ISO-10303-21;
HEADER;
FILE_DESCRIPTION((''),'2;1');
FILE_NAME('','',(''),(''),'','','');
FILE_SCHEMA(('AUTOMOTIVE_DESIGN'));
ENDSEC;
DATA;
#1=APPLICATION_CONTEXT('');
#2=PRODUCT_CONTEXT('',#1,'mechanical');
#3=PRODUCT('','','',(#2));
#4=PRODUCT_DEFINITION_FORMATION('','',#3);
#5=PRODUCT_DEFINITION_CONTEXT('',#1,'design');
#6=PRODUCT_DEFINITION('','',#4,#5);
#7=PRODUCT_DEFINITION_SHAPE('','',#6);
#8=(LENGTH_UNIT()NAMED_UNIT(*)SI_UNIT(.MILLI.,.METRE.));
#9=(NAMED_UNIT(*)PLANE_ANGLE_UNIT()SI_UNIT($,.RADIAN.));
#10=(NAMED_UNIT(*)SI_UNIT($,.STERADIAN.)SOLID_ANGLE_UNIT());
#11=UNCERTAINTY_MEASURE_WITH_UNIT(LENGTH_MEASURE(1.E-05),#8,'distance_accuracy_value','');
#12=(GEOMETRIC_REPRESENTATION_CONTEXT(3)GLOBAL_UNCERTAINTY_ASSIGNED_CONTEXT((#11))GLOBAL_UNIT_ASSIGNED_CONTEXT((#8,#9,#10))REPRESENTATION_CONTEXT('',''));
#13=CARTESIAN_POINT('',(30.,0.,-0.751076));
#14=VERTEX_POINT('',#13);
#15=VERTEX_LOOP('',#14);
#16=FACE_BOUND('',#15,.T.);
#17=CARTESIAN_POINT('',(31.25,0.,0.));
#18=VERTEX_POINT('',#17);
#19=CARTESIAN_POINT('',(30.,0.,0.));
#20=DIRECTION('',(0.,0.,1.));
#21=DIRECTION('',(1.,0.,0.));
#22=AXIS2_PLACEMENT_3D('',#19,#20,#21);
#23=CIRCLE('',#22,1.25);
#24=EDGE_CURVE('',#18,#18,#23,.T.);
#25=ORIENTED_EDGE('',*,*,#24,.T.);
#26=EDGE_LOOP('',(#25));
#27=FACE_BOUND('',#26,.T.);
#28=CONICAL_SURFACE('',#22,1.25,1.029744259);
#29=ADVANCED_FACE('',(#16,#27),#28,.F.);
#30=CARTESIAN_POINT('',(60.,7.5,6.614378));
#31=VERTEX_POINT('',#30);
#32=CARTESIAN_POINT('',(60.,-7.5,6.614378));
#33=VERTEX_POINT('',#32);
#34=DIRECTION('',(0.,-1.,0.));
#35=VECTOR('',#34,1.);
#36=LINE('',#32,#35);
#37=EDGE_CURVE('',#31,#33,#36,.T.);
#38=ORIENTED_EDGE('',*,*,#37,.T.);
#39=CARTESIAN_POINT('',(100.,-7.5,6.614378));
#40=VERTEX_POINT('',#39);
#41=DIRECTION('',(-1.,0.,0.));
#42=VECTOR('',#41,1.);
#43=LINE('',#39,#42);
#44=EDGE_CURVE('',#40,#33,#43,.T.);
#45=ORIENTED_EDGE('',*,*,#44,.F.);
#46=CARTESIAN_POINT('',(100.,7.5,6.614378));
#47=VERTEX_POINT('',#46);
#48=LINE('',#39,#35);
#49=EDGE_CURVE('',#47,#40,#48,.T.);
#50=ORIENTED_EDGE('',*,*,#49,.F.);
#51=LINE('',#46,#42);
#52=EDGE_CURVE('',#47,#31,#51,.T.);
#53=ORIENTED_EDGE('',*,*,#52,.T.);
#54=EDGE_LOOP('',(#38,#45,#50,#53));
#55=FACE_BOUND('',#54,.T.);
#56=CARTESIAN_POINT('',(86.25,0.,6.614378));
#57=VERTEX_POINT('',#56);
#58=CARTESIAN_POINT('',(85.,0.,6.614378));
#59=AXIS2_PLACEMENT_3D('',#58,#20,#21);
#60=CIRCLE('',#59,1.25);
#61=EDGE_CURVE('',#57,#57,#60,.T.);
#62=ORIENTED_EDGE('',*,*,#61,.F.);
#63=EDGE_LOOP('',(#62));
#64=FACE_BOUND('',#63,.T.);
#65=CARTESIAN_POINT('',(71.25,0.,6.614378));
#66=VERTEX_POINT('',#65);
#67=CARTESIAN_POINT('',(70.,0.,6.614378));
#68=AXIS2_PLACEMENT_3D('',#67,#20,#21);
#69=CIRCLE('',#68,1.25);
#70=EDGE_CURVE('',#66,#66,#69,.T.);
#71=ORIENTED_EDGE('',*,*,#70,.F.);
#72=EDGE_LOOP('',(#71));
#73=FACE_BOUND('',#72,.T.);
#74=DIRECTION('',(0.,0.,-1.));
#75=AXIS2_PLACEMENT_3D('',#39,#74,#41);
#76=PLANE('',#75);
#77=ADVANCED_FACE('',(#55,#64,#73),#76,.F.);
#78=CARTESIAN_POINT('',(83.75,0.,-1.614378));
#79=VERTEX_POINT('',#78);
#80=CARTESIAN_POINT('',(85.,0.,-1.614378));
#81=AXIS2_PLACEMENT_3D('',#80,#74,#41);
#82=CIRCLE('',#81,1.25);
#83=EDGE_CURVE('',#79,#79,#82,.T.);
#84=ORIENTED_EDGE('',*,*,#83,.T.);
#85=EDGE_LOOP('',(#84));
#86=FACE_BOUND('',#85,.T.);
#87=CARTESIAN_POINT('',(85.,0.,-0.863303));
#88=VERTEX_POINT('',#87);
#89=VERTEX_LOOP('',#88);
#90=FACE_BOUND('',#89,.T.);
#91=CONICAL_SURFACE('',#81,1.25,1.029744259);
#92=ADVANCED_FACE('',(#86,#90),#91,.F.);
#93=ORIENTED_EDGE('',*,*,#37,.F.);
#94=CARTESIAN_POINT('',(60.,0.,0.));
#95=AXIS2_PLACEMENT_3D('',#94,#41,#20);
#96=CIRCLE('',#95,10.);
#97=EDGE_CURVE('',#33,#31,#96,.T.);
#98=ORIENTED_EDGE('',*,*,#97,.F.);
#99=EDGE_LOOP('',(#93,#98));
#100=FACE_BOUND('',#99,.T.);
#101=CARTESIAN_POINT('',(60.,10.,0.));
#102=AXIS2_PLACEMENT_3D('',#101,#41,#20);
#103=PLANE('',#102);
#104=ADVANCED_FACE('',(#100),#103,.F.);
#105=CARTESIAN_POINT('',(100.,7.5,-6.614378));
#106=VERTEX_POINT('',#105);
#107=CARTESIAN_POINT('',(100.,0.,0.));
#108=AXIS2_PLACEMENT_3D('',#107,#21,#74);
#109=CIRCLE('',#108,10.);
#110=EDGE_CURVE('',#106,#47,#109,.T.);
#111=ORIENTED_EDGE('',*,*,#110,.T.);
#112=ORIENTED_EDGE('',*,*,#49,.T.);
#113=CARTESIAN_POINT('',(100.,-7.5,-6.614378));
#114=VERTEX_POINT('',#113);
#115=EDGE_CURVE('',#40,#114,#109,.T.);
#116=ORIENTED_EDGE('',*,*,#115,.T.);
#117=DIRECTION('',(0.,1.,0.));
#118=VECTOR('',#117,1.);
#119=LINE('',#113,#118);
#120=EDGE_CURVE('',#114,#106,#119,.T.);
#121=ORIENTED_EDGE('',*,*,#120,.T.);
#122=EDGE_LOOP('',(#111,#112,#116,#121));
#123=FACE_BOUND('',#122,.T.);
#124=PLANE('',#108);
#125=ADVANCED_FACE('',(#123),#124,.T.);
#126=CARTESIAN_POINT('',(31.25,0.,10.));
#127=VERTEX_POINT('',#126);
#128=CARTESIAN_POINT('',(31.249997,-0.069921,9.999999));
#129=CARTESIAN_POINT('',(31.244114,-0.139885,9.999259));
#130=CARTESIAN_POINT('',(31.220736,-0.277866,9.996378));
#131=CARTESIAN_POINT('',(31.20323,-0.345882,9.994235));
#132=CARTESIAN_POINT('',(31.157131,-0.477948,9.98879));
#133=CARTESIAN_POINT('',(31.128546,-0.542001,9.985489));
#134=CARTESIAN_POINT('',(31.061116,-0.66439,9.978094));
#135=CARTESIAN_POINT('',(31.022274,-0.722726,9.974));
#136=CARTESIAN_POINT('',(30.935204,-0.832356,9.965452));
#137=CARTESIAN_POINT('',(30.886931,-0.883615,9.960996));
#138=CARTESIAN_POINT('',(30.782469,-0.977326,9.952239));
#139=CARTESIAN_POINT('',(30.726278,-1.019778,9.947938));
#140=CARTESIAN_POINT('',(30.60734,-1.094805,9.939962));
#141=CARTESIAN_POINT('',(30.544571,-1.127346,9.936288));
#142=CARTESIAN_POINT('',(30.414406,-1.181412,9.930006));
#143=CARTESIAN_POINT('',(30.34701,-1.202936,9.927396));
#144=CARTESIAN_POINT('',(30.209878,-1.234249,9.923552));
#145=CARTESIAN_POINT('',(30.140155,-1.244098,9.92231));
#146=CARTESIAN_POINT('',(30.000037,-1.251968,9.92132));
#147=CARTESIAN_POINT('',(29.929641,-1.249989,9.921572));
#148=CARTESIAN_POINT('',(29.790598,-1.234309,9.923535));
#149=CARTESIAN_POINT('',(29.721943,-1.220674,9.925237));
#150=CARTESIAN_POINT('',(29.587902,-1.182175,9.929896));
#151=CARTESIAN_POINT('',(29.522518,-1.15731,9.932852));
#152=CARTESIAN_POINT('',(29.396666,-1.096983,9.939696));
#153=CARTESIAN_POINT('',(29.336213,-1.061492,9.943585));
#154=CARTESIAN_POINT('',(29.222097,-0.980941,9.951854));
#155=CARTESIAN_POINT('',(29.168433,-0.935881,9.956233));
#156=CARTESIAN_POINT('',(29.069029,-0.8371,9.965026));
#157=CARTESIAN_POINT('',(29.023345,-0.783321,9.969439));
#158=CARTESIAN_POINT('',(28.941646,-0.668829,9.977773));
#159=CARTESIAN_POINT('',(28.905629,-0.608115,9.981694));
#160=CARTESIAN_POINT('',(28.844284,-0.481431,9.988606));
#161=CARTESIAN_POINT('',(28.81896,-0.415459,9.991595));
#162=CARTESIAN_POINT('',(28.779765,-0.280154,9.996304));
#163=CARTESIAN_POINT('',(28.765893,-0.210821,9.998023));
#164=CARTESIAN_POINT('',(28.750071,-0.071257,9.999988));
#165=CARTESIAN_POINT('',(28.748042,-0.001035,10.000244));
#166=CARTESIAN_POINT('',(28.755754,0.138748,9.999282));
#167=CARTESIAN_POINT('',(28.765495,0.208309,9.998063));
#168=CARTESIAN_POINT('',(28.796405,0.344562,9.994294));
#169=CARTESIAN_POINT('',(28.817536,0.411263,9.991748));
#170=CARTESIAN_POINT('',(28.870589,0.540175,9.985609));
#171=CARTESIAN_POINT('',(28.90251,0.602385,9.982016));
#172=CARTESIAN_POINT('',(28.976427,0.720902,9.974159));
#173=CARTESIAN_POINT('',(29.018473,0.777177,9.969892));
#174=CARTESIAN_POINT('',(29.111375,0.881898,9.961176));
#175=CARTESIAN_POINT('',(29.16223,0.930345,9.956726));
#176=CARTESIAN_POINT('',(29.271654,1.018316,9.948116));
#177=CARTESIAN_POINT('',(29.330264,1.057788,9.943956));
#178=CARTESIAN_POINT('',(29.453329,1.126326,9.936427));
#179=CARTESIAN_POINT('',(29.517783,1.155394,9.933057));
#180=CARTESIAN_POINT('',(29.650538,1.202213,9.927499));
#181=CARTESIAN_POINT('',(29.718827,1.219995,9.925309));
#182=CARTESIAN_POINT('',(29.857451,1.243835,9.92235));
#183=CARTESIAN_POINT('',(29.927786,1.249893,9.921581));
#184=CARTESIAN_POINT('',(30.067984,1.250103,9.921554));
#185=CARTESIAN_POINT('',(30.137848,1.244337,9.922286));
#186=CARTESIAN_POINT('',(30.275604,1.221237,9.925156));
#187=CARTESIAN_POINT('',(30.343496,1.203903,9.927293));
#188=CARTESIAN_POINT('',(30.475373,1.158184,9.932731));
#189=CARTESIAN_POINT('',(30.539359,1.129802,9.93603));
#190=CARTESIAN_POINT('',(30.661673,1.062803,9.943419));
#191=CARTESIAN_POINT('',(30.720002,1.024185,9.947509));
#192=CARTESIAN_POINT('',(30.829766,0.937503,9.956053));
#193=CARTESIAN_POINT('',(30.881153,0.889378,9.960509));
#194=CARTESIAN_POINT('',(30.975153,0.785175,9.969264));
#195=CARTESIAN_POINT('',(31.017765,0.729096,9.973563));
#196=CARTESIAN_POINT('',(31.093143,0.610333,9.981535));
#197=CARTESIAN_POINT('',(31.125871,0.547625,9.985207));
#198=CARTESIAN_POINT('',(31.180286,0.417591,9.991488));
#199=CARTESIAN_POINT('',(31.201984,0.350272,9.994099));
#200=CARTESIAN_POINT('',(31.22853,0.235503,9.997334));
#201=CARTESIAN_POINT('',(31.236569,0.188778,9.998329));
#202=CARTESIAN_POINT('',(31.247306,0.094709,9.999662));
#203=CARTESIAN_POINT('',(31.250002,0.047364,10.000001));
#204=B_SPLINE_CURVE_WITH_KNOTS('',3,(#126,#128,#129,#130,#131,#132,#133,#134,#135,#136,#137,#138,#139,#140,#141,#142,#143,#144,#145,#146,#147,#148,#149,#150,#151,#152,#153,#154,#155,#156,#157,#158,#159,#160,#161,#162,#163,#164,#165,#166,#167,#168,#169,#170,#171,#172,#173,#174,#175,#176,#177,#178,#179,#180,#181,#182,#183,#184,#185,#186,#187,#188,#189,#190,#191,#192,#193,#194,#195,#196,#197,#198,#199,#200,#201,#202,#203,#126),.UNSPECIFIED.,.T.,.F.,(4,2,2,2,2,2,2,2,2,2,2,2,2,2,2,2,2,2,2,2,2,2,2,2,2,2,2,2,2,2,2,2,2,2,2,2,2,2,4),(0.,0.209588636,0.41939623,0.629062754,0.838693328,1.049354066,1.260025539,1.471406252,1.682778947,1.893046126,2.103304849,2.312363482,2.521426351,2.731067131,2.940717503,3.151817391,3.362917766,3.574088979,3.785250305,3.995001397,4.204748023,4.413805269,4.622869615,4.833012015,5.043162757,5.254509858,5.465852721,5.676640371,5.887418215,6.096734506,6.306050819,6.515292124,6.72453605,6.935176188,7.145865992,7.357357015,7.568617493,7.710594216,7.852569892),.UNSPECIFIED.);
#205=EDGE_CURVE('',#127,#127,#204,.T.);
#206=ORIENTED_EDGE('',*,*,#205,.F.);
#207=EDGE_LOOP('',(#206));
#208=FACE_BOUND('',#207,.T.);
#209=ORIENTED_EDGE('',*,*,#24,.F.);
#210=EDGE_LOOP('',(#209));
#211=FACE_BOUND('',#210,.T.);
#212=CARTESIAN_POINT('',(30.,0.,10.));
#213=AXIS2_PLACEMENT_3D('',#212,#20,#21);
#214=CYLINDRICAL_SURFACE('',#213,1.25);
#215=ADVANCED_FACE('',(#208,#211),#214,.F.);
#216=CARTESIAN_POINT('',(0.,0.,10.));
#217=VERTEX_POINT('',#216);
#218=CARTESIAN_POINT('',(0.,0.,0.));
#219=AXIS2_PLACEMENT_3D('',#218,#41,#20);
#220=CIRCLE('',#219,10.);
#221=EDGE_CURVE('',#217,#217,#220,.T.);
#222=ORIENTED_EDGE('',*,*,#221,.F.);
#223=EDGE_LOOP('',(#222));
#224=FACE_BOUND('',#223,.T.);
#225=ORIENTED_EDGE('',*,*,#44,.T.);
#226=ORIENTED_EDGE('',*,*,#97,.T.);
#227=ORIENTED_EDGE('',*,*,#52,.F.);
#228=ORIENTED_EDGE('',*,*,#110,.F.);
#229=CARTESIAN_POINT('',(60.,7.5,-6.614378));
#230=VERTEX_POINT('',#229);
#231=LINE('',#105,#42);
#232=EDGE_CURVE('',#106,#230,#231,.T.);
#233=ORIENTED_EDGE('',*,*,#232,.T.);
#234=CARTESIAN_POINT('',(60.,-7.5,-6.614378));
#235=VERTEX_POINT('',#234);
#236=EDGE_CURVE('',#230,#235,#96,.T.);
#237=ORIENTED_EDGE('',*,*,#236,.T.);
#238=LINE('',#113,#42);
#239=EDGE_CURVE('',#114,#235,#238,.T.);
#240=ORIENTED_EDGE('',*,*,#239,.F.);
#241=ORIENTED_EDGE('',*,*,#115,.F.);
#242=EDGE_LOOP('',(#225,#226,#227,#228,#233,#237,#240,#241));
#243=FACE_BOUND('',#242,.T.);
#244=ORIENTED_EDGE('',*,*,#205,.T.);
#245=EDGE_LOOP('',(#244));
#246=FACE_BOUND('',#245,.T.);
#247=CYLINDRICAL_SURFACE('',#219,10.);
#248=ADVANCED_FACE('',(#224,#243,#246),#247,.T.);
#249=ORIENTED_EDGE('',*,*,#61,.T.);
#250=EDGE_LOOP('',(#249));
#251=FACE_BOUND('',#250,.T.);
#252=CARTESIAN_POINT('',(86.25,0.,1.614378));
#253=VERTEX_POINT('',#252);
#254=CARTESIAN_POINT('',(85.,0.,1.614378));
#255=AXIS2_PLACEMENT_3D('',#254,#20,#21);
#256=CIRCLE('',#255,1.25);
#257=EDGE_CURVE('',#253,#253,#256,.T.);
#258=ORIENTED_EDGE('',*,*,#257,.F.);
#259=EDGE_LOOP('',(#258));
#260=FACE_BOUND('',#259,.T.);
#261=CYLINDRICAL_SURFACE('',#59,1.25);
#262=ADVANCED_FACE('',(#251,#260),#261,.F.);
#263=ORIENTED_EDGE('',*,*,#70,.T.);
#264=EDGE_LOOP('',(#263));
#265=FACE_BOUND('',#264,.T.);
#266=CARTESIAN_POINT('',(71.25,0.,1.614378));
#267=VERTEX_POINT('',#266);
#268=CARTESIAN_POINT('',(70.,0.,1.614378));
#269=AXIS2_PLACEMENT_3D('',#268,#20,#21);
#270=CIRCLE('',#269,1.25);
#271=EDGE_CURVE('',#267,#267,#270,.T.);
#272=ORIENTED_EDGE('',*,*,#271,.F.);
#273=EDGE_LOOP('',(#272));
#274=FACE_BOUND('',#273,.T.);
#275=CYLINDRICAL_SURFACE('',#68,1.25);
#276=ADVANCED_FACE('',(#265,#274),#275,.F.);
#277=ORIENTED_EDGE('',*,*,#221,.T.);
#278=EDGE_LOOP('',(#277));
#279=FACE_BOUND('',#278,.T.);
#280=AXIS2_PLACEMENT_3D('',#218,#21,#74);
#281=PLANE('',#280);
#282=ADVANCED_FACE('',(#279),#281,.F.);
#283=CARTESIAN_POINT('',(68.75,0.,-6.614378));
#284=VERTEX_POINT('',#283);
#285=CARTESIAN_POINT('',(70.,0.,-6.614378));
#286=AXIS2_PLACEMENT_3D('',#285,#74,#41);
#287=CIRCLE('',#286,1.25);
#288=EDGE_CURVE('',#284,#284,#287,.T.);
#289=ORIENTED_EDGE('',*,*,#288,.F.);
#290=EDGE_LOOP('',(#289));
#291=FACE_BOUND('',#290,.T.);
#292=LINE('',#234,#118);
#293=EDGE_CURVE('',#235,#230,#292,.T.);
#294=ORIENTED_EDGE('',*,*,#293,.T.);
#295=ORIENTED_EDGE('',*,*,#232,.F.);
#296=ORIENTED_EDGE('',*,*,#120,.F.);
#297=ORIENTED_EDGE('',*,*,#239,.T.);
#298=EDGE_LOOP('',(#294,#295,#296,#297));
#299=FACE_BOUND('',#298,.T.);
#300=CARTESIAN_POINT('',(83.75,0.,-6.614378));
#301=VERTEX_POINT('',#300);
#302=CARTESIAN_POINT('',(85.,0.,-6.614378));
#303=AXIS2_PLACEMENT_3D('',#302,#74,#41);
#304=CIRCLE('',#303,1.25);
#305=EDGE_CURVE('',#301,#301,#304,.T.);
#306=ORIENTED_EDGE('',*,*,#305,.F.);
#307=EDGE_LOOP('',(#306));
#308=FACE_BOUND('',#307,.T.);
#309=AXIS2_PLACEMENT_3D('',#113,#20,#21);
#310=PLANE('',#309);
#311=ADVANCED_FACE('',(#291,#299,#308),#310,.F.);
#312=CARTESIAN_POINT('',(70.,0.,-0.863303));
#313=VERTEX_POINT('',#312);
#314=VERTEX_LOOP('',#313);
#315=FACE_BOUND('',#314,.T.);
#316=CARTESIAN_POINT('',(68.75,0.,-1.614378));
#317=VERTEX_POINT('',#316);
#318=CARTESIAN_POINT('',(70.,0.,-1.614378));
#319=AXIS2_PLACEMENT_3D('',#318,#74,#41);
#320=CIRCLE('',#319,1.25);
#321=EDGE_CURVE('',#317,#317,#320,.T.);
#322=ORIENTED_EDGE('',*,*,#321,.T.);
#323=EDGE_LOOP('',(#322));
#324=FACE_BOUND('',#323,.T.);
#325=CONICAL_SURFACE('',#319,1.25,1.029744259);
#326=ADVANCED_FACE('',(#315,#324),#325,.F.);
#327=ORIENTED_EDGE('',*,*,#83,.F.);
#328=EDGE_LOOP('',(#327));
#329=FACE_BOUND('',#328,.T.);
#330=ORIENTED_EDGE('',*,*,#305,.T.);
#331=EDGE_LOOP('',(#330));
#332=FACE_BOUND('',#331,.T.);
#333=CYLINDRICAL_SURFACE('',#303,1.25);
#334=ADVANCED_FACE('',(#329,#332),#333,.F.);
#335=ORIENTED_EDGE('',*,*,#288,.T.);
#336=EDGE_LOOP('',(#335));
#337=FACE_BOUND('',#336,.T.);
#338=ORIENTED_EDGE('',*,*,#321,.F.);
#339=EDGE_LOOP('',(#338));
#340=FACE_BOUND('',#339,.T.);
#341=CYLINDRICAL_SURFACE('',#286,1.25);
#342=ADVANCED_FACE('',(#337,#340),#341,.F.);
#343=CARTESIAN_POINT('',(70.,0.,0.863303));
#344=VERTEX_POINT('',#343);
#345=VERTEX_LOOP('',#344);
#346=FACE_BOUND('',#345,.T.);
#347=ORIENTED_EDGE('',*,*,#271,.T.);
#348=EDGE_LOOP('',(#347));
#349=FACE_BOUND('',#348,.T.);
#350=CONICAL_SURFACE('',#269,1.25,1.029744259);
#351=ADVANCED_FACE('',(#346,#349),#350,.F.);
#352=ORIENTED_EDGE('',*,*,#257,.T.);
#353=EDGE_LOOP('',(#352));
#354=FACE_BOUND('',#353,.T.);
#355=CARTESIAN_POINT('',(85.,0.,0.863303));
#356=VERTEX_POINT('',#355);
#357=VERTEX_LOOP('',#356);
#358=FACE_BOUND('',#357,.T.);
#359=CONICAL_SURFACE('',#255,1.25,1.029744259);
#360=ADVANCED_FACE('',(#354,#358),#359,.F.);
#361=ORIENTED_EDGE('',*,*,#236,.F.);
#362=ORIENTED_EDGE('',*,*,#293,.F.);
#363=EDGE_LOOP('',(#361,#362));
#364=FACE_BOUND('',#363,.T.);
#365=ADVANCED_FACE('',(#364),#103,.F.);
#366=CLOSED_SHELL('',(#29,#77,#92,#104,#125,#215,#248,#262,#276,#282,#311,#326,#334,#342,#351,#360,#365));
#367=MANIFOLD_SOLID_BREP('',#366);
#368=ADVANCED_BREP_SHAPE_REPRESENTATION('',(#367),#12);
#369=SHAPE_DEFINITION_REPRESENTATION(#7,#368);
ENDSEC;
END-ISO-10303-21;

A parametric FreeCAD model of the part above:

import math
import FreeCAD as App
import Part
import Sketcher
from FreeCAD import Vector
Q = App.Units.Quantity

doc = App.newDocument("Part")
body = doc.addObject("PartDesign::Body", "Body")

sketch1 = doc.addObject("Sketcher::SketchObject", "Sketch")
body.addObject(sketch1)
sketch1.AttachmentSupport = (doc.XY_Plane, [""])
sketch1.MapMode = "FlatFace"
sketch1.addGeometry([
    Part.LineSegment(Vector(0, 10, 0), Vector(0, 0, 0)),
    Part.LineSegment(Vector(0, 0, 0), Vector(60, 0, 0)),
    Part.LineSegment(Vector(60, 0, 0), Vector(60, 10, 0)),
    Part.LineSegment(Vector(60, 10, 0), Vector(0, 10, 0)),
], False)
sketch1.addConstraint([
    Sketcher.Constraint("Coincident", 0, 2, 1, 1),
    Sketcher.Constraint("Coincident", 1, 2, 2, 1),
    Sketcher.Constraint("Coincident", 2, 2, 3, 1),
    Sketcher.Constraint("Coincident", 3, 2, 0, 1),
    Sketcher.Constraint("Vertical", 0),
    Sketcher.Constraint("Horizontal", 1),
    Sketcher.Constraint("Vertical", 2),
    Sketcher.Constraint("Horizontal", 3),
    Sketcher.Constraint("Coincident", 0, 2, -1, 1),
    Sketcher.Constraint("DistanceX", 1, 1, 1, 2, Q("60 mm")),
    Sketcher.Constraint("DistanceY", 0, 2, 0, 1, Q("10 mm")),
])
revolution = doc.addObject("PartDesign::Revolution", "Revolution")
body.addObject(revolution)
revolution.Profile = sketch1
revolution.ReferenceAxis = (sketch1, ["H_Axis"])
revolution.Angle = 360

sketch2 = doc.addObject("Sketcher::SketchObject", "Sketch001")
body.addObject(sketch2)
sketch2.AttachmentSupport = (doc.YZ_Plane, [""])
sketch2.MapMode = "FlatFace"
sketch2.AttachmentOffset = App.Placement(Vector(0, 0, 60), App.Rotation())
sketch2.addGeometry([
    Part.LineSegment(Vector(8, 7, 0), Vector(-8, 7, 0)),
    Part.ArcOfCircle(Part.Circle(Vector(0, 0, 0), Vector(0, 0, 1), 10), math.radians(139), math.radians(221)),
    Part.LineSegment(Vector(-8, -7, 0), Vector(8, -7, 0)),
    Part.ArcOfCircle(Part.Circle(Vector(0, 0, 0), Vector(0, 0, 1), 10), math.radians(-41), math.radians(41)),
], False)
sketch2.addConstraint([
    Sketcher.Constraint("Coincident", 0, 2, 1, 1),
    Sketcher.Constraint("Coincident", 1, 2, 2, 1),
    Sketcher.Constraint("Coincident", 2, 2, 3, 1),
    Sketcher.Constraint("Coincident", 3, 2, 0, 1),
    Sketcher.Constraint("Horizontal", 0),
    Sketcher.Constraint("Horizontal", 2),
    Sketcher.Constraint("Coincident", 1, 3, -1, 1),
    Sketcher.Constraint("Coincident", 3, 3, -1, 1),
    Sketcher.Constraint("Equal", 1, 3),
    Sketcher.Constraint("Vertical", 0, 2, 1, 2),
    Sketcher.Constraint("Radius", 1, Q("10 mm")),
    Sketcher.Constraint("DistanceX", 0, 2, 0, 1, Q("15 mm")),
])
pad1 = doc.addObject("PartDesign::Pad", "Pad")
body.addObject(pad1)
pad1.Profile = sketch2
pad1.Length = 40

sketch3 = doc.addObject("Sketcher::SketchObject", "Sketch002")
body.addObject(sketch3)
sketch3.AttachmentSupport = (doc.XY_Plane, [""])
sketch3.MapMode = "FlatFace"
sketch3.AttachmentOffset = App.Placement(Vector(0, 0, 10), App.Rotation())
sketch3.addGeometry(Part.Circle(Vector(30, 0, 0), Vector(0, 0, 1), 1.2), False)
sketch3.addConstraint([
    Sketcher.Constraint("PointOnObject", 0, 3, -1),
    Sketcher.Constraint("Diameter", 0, Q("2.5 mm")),
    Sketcher.Constraint("DistanceX", -1, 1, 0, 3, Q("30 mm")),
])
doc.recompute()
hole = doc.addObject("PartDesign::Hole", "Hole")
body.addObject(hole)
hole.Profile = sketch3
hole.ThreadType = "None"
hole.Diameter = 2.5
hole.DepthType = "Dimension"
hole.Depth = 10
hole.DrillPoint = "Angled"
hole.DrillPointAngle = 118

sketch4 = doc.addObject("Sketcher::SketchObject", "Sketch003")
body.addObject(sketch4)
sketch4.AttachmentSupport = (doc.XY_Plane, [""])
sketch4.MapMode = "FlatFace"
sketch4.AttachmentOffset = App.Placement(Vector(0, 0, 6.614378), App.Rotation())
sketch4.addGeometry([
    Part.Circle(Vector(70, 0, 0), Vector(0, 0, 1), 1.2),
    Part.Circle(Vector(85, 0, 0), Vector(0, 0, 1), 1.2),
], False)
sketch4.addConstraint([
    Sketcher.Constraint("Equal", 0, 1),
    Sketcher.Constraint("PointOnObject", 0, 3, -1),
    Sketcher.Constraint("PointOnObject", 1, 3, -1),
    Sketcher.Constraint("Diameter", 0, Q("2.5 mm")),
    Sketcher.Constraint("DistanceX", -1, 1, 0, 3, Q("70 mm")),
    Sketcher.Constraint("DistanceX", -1, 1, 1, 3, Q("85 mm")),
])
doc.recompute()
hole2 = doc.addObject("PartDesign::Hole", "Hole001")
body.addObject(hole2)
hole2.Profile = sketch4
hole2.ThreadType = "None"
hole2.Diameter = 2.5
hole2.DepthType = "Dimension"
hole2.Depth = 5
hole2.DrillPoint = "Angled"
hole2.DrillPointAngle = 118

sketch5 = doc.addObject("Sketcher::SketchObject", "Sketch004")
body.addObject(sketch5)
sketch5.AttachmentSupport = (doc.XY_Plane, [""])
sketch5.MapMode = "FlatFace"
sketch5.AttachmentOffset = App.Placement(Vector(0, 0, -6.614378), App.Rotation())
sketch5.addGeometry([
    Part.Circle(Vector(85, 0, 0), Vector(0, 0, 1), 1.2),
    Part.Circle(Vector(70, 0, 0), Vector(0, 0, 1), 1.2),
], False)
sketch5.addConstraint([
    Sketcher.Constraint("Equal", 0, 1),
    Sketcher.Constraint("PointOnObject", 0, 3, -1),
    Sketcher.Constraint("PointOnObject", 1, 3, -1),
    Sketcher.Constraint("Diameter", 0, Q("2.5 mm")),
    Sketcher.Constraint("DistanceX", -1, 1, 0, 3, Q("85 mm")),
    Sketcher.Constraint("DistanceX", -1, 1, 1, 3, Q("70 mm")),
])
doc.recompute()
hole3 = doc.addObject("PartDesign::Hole", "Hole002")
body.addObject(hole3)
hole3.Profile = sketch5
hole3.ThreadType = "None"
hole3.Diameter = 2.5
hole3.DepthType = "Dimension"
hole3.Depth = 5
hole3.DrillPoint = "Angled"
hole3.DrillPointAngle = 118
hole3.Reversed = True

doc.recompute()
